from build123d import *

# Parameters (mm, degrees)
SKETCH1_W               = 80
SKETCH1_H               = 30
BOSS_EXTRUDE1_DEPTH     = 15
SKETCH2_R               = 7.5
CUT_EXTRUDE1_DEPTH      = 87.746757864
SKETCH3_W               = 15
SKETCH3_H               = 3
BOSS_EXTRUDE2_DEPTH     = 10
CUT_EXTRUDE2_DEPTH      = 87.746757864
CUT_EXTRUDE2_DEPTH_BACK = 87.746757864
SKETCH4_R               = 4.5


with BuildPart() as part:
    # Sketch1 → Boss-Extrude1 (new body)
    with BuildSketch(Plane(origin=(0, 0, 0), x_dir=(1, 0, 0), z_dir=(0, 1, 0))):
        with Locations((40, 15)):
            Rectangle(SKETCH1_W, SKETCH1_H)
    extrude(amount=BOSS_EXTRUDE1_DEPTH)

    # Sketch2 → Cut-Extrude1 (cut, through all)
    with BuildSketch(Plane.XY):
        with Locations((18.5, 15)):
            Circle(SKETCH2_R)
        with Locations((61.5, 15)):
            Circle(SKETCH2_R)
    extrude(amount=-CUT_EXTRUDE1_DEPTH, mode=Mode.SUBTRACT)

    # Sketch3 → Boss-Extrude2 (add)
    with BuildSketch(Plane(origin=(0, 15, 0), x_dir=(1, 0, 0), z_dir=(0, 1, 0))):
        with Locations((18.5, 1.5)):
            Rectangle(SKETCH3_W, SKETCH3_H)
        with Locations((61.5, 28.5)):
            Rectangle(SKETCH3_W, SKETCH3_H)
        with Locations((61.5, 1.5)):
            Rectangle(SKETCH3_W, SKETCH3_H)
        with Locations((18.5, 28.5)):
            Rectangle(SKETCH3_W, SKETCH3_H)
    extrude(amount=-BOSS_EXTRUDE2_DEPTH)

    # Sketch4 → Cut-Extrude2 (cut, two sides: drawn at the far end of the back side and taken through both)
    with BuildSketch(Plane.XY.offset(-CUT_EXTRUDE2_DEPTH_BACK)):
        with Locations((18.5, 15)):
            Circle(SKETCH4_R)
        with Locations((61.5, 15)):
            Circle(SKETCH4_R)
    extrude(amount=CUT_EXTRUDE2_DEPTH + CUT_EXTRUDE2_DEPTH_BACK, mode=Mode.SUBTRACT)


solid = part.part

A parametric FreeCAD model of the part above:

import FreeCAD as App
import Part
import Sketcher
from FreeCAD import Vector


def add_polygon(sketch, points):
    """Adds a closed chain of lines whose ends are joined by coincident constraints."""
    first, n = sketch.GeometryCount, len(points)
    for a, b in zip(points, points[1:] + points[:1]):
        sketch.addGeometry(Part.LineSegment(App.Vector(*a, 0), App.Vector(*b, 0)), False)
    for i in range(n):
        sketch.addConstraint(Sketcher.Constraint("Coincident", first + i, 2, first + (i + 1) % n, 1))

doc = App.newDocument("Part")
body = doc.addObject("PartDesign::Body", "Body")

# Sketch on XZ plane
sketch1 = body.newObject("Sketcher::SketchObject", "Sketch")
sketch1.AttachmentSupport = (doc.getObject("XZ_Plane"), [""])
sketch1.MapMode = "FlatFace"
add_polygon(sketch1, [(0, -30), (0, 0), (80, 0), (80, -30)])  # lines 0-3
sketch1.addConstraint(Sketcher.Constraint("Vertical", 0))
sketch1.addConstraint(Sketcher.Constraint("Horizontal", 1))
sketch1.addConstraint(Sketcher.Constraint("Vertical", 2))
sketch1.addConstraint(Sketcher.Constraint("Horizontal", 3))
sketch1.addConstraint(Sketcher.Constraint("Coincident", 0, 2, -1, 1))
sketch1.addConstraint(Sketcher.Constraint("DistanceX", 1, 1, 1, 2, 80.0))
sketch1.addConstraint(Sketcher.Constraint("DistanceY", 0, 1, 0, 2, 30.0))
pad1 = body.newObject("PartDesign::Pad", "Pad")
pad1.Profile = sketch1
pad1.Length = 15
pad1.Reversed = True

# Sketch on XY plane
sketch2 = body.newObject("Sketcher::SketchObject", "Sketch001")
sketch2.AttachmentSupport = (doc.getObject("XY_Plane"), [""])
sketch2.MapMode = "FlatFace"
sketch2.addGeometry(Part.Circle(Vector(18, 15, 0), Vector(0, 0, 1), 8), False)
sketch2.addGeometry(Part.Circle(Vector(62, 15, 0), Vector(0, 0, 1), 8), False)
sketch2.addConstraint(Sketcher.Constraint("Equal", 0, 1))
sketch2.addConstraint(Sketcher.Constraint("Horizontal", 0, 3, 1, 3))
sketch2.addConstraint(Sketcher.Constraint("Diameter", 0, 15.0))
sketch2.addConstraint(Sketcher.Constraint("DistanceY", -1, 1, 0, 3, 15.0))
sketch2.addConstraint(Sketcher.Constraint("DistanceX", 0, 3, 1, 3, 43.0))
sketch2.addConstraint(Sketcher.Constraint("DistanceX", -1, 1, 0, 3, 18.5))
pocket1 = body.newObject("PartDesign::Pocket", "Pocket")
pocket1.Profile = sketch2
pocket1.Type = "ThroughAll"

# Sketch on XZ plane
sketch3 = body.newObject("Sketcher::SketchObject", "Sketch002")
sketch3.AttachmentSupport = (doc.getObject("XZ_Plane"), [""])
sketch3.MapMode = "FlatFace"
sketch3.AttachmentOffset = App.Placement(Vector(0, 0, -15), App.Rotation())
add_polygon(sketch3, [(11, -3), (11, 0), (26, 0), (26, -3)])  # lines 0-3
add_polygon(sketch3, [(54, -30), (54, -27), (69, -27), (69, -30)])  # lines 4-7
add_polygon(sketch3, [(54, -3), (54, 0), (69, 0), (69, -3)])  # lines 8-11
add_polygon(sketch3, [(11, -30), (11, -27), (26, -27), (26, -30)])  # lines 12-15
sketch3.addConstraint(Sketcher.Constraint("Vertical", 0))
sketch3.addConstraint(Sketcher.Constraint("Horizontal", 1))
sketch3.addConstraint(Sketcher.Constraint("Vertical", 2))
sketch3.addConstraint(Sketcher.Constraint("Horizontal", 3))
sketch3.addConstraint(Sketcher.Constraint("Vertical", 4))
sketch3.addConstraint(Sketcher.Constraint("Horizontal", 5))
sketch3.addConstraint(Sketcher.Constraint("Vertical", 6))
sketch3.addConstraint(Sketcher.Constraint("Horizontal", 7))
sketch3.addConstraint(Sketcher.Constraint("Vertical", 8))
sketch3.addConstraint(Sketcher.Constraint("Horizontal", 9))
sketch3.addConstraint(Sketcher.Constraint("Vertical", 10))
sketch3.addConstraint(Sketcher.Constraint("Horizontal", 11))
sketch3.addConstraint(Sketcher.Constraint("Vertical", 12))
sketch3.addConstraint(Sketcher.Constraint("Horizontal", 13))
sketch3.addConstraint(Sketcher.Constraint("Vertical", 14))
sketch3.addConstraint(Sketcher.Constraint("Horizontal", 15))
sketch3.addConstraint(Sketcher.Constraint("PointOnObject", 0, 2, -1))
sketch3.addConstraint(Sketcher.Constraint("PointOnObject", 8, 2, -1))
sketch3.addConstraint(Sketcher.Constraint("Horizontal", 3, 2, 10, 2))
sketch3.addConstraint(Sketcher.Constraint("Horizontal", 5, 2, 12, 2))
sketch3.addConstraint(Sketcher.Constraint("Horizontal", 7, 2, 14, 2))
sketch3.addConstraint(Sketcher.Constraint("Vertical", 7, 2, 8, 2))
sketch3.addConstraint(Sketcher.Constraint("Vertical", 6, 2, 9, 2))
sketch3.addConstraint(Sketcher.Constraint("Vertical", 3, 2, 12, 2))
sketch3.addConstraint(Sketcher.Constraint("Vertical", 2, 2, 13, 2))
sketch3.addConstraint(Sketcher.Constraint("Equal", 3, 5))
sketch3.addConstraint(Sketcher.Constraint("Equal", 2, 4))
sketch3.addConstraint(Sketcher.Constraint("DistanceX", 1, 1, 1, 2, 15.0))
sketch3.addConstraint(Sketcher.Constraint("DistanceY", 0, 1, 0, 2, 3.0))
sketch3.addConstraint(Sketcher.Constraint("DistanceX", -1, 1, 0, 2, 11.0))
sketch3.addConstraint(Sketcher.Constraint("DistanceX", -1, 1, 4, 2, 54.0))
sketch3.addConstraint(Sketcher.Constraint("DistanceY", 4, 2, -1, 1, 27.0))
pad2 = body.newObject("PartDesign::Pad", "Pad001")
pad2.Profile = sketch3
pad2.Length = 10

# Sketch on XY plane
sketch4 = body.newObject("Sketcher::SketchObject", "Sketch003")
sketch4.AttachmentSupport = (doc.getObject("XY_Plane"), [""])
sketch4.MapMode = "FlatFace"
sketch4.addGeometry(Part.Circle(Vector(18.5, 15, 0), Vector(0, 0, 1), 4.5), False)
sketch4.addGeometry(Part.Circle(Vector(61.5, 15, 0), Vector(0, 0, 1), 4.5), False)
sketch4.addConstraint(Sketcher.Constraint("Equal", 0, 1))
sketch4.addConstraint(Sketcher.Constraint("Horizontal", 0, 3, 1, 3))
sketch4.addConstraint(Sketcher.Constraint("Diameter", 0, 9.0))
sketch4.addConstraint(Sketcher.Constraint("DistanceY", -1, 1, 0, 3, 15.0))
sketch4.addConstraint(Sketcher.Constraint("DistanceX", 0, 3, 1, 3, 43.0))
sketch4.addConstraint(Sketcher.Constraint("DistanceX", -1, 1, 0, 3, 18.5))
pocket2 = body.newObject("PartDesign::Pocket", "Pocket001")
pocket2.Profile = sketch4
pocket2.Type = "ThroughAll"
pocket2.Midplane = True

doc.recompute()
